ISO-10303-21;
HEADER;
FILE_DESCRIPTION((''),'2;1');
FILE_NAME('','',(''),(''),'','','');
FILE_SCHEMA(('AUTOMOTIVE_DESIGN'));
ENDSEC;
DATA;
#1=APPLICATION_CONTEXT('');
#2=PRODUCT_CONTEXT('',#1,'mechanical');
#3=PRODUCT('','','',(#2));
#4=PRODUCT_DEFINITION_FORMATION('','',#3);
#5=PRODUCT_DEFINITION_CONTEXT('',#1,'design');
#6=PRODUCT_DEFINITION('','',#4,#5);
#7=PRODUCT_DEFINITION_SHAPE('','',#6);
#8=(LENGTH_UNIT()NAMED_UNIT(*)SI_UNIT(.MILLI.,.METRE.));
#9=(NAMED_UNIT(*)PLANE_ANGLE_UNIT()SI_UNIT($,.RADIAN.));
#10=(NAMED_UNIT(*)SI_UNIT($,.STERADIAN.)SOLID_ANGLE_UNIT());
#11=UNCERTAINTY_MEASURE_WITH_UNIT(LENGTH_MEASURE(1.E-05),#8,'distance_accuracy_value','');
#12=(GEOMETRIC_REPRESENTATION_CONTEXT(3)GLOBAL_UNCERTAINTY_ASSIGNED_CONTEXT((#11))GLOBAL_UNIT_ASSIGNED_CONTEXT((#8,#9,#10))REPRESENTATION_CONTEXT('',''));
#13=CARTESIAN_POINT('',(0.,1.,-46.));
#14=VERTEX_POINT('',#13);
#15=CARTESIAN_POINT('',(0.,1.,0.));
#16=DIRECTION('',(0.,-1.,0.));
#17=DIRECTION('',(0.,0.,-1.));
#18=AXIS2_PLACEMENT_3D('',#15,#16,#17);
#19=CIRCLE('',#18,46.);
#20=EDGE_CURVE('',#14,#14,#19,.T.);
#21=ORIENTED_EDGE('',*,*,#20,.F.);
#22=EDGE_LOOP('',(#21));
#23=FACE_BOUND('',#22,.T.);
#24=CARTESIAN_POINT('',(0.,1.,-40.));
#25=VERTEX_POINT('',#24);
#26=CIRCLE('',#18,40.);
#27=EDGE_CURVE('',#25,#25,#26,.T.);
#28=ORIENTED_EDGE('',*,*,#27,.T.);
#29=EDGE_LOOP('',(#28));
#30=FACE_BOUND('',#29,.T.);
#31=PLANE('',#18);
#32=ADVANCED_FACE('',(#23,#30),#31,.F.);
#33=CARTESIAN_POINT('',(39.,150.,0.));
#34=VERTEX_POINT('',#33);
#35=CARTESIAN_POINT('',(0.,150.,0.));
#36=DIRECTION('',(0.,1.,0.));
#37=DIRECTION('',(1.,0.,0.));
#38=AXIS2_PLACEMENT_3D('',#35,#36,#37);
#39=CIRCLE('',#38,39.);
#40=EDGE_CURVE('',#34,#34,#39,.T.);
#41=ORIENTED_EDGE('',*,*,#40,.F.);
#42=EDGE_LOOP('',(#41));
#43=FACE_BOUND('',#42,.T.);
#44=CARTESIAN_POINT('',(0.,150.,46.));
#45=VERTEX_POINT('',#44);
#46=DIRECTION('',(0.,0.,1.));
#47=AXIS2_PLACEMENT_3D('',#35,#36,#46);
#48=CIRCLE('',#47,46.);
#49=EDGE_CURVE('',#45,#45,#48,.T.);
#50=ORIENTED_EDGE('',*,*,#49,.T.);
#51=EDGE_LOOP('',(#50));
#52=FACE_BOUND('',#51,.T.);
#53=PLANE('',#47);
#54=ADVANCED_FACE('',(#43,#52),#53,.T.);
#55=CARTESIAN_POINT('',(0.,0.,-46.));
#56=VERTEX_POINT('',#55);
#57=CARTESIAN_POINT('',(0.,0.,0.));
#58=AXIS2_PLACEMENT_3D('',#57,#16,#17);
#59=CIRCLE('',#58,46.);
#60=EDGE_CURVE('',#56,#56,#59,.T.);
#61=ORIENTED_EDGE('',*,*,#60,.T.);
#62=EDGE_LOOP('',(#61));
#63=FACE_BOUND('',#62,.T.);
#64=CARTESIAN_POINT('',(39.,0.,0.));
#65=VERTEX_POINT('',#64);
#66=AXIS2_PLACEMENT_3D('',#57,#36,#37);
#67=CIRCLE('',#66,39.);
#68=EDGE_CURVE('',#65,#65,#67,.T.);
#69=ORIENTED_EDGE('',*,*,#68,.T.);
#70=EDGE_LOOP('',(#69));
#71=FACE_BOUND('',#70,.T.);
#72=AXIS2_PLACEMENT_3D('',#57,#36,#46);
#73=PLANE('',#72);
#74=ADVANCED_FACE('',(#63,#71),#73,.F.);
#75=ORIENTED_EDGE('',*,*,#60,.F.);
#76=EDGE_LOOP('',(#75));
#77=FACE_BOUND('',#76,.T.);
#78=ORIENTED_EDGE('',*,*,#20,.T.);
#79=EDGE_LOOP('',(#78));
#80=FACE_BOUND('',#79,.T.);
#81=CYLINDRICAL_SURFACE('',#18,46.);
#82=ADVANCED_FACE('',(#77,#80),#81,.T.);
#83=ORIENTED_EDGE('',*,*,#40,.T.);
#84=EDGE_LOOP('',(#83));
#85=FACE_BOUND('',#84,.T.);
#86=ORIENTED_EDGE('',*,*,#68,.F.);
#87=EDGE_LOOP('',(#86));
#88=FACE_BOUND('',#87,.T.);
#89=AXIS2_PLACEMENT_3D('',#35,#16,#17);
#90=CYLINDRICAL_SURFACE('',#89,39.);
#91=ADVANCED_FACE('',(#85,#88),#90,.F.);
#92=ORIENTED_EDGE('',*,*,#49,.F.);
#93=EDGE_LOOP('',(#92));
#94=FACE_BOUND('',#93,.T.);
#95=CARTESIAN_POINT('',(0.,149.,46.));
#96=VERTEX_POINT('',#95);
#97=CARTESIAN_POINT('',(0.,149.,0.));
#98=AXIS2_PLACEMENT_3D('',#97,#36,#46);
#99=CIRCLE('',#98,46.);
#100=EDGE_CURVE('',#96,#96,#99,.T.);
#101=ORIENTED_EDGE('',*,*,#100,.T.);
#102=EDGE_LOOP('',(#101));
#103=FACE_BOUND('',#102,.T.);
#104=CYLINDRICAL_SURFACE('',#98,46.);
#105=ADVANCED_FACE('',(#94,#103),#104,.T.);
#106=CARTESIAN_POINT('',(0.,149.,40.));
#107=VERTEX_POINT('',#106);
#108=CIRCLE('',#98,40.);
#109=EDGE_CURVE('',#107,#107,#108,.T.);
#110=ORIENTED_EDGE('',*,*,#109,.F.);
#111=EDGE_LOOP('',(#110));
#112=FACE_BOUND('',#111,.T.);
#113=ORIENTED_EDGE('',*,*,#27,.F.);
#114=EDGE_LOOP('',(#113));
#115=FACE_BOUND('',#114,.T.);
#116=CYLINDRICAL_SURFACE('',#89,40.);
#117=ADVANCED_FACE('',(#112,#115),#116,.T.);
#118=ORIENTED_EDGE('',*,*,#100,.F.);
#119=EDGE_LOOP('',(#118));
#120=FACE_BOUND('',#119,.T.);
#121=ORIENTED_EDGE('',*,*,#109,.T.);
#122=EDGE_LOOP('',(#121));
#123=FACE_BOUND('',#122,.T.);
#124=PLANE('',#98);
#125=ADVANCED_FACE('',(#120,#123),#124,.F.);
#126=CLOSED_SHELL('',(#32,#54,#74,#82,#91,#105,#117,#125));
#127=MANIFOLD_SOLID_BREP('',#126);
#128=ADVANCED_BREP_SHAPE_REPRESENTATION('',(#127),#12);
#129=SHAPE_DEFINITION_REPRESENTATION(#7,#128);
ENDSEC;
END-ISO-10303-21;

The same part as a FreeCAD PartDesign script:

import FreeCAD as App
import Part
import Sketcher

V = App.Vector
Q = App.Units.Quantity

doc = App.newDocument("Part")
body = doc.addObject("PartDesign::Body", "Body")

# Sketch on XZ plane
sketch1 = body.newObject("Sketcher::SketchObject", "Sketch")
sketch1.AttachmentSupport = (doc.getObject("XZ_Plane"), [""])
sketch1.MapMode = "FlatFace"
sketch1.addGeometry([
    Part.Circle(V(0, 0, 0), V(0, 0, 1), 40),
    Part.Circle(V(0, 0, 0), V(0, 0, 1), 39),
], False)
sketch1.addConstraint([
    Sketcher.Constraint("Coincident", 0, 3, -1, 1),
    Sketcher.Constraint("Coincident", 1, 3, -1, 1),
    Sketcher.Constraint("Diameter", 0, Q("80 mm")),
    Sketcher.Constraint("Diameter", 1, Q("78 mm")),
])
pad1 = body.newObject("PartDesign::Pad", "Pad")
pad1.Profile = sketch1
pad1.Length = 150
pad1.Reversed = True

# Sketch on XZ plane
sketch2 = body.newObject("Sketcher::SketchObject", "Sketch001")
sketch2.AttachmentSupport = (doc.getObject("XZ_Plane"), [""])
sketch2.MapMode = "FlatFace"
sketch2.AttachmentOffset = App.Placement(V(0, 0, -149), App.Rotation())
sketch2.addGeometry([
    Part.Circle(V(0, 0, 0), V(0, 0, 1), 46),
    Part.Circle(V(0, 0, 0), V(0, 0, 1), 40),
], False)
sketch2.addConstraint([
    Sketcher.Constraint("Coincident", 0, 3, -1, 1),
    Sketcher.Constraint("Coincident", 1, 3, -1, 1),
    Sketcher.Constraint("Diameter", 0, Q("92 mm")),
    Sketcher.Constraint("Diameter", 1, Q("80 mm")),
])
pad2 = body.newObject("PartDesign::Pad", "Pad001")
pad2.Profile = sketch2
pad2.Length = 1
pad2.Reversed = True

# Sketch on XZ plane
sketch3 = body.newObject("Sketcher::SketchObject", "Sketch002")
sketch3.AttachmentSupport = (doc.getObject("XZ_Plane"), [""])
sketch3.MapMode = "FlatFace"
sketch3.addGeometry([
    Part.Circle(V(0, 0, 0), V(0, 0, 1), 46),
    Part.Circle(V(0, 0, 0), V(0, 0, 1), 40),
], False)
sketch3.addConstraint([
    Sketcher.Constraint("Coincident", 0, 3, -1, 1),
    Sketcher.Constraint("Coincident", 1, 3, -1, 1),
    Sketcher.Constraint("Diameter", 0, Q("92 mm")),
    Sketcher.Constraint("Diameter", 1, Q("80 mm")),
])
pad3 = body.newObject("PartDesign::Pad", "Pad002")
pad3.Profile = sketch3
pad3.Length = 1
pad3.Reversed = True

doc.recompute()
